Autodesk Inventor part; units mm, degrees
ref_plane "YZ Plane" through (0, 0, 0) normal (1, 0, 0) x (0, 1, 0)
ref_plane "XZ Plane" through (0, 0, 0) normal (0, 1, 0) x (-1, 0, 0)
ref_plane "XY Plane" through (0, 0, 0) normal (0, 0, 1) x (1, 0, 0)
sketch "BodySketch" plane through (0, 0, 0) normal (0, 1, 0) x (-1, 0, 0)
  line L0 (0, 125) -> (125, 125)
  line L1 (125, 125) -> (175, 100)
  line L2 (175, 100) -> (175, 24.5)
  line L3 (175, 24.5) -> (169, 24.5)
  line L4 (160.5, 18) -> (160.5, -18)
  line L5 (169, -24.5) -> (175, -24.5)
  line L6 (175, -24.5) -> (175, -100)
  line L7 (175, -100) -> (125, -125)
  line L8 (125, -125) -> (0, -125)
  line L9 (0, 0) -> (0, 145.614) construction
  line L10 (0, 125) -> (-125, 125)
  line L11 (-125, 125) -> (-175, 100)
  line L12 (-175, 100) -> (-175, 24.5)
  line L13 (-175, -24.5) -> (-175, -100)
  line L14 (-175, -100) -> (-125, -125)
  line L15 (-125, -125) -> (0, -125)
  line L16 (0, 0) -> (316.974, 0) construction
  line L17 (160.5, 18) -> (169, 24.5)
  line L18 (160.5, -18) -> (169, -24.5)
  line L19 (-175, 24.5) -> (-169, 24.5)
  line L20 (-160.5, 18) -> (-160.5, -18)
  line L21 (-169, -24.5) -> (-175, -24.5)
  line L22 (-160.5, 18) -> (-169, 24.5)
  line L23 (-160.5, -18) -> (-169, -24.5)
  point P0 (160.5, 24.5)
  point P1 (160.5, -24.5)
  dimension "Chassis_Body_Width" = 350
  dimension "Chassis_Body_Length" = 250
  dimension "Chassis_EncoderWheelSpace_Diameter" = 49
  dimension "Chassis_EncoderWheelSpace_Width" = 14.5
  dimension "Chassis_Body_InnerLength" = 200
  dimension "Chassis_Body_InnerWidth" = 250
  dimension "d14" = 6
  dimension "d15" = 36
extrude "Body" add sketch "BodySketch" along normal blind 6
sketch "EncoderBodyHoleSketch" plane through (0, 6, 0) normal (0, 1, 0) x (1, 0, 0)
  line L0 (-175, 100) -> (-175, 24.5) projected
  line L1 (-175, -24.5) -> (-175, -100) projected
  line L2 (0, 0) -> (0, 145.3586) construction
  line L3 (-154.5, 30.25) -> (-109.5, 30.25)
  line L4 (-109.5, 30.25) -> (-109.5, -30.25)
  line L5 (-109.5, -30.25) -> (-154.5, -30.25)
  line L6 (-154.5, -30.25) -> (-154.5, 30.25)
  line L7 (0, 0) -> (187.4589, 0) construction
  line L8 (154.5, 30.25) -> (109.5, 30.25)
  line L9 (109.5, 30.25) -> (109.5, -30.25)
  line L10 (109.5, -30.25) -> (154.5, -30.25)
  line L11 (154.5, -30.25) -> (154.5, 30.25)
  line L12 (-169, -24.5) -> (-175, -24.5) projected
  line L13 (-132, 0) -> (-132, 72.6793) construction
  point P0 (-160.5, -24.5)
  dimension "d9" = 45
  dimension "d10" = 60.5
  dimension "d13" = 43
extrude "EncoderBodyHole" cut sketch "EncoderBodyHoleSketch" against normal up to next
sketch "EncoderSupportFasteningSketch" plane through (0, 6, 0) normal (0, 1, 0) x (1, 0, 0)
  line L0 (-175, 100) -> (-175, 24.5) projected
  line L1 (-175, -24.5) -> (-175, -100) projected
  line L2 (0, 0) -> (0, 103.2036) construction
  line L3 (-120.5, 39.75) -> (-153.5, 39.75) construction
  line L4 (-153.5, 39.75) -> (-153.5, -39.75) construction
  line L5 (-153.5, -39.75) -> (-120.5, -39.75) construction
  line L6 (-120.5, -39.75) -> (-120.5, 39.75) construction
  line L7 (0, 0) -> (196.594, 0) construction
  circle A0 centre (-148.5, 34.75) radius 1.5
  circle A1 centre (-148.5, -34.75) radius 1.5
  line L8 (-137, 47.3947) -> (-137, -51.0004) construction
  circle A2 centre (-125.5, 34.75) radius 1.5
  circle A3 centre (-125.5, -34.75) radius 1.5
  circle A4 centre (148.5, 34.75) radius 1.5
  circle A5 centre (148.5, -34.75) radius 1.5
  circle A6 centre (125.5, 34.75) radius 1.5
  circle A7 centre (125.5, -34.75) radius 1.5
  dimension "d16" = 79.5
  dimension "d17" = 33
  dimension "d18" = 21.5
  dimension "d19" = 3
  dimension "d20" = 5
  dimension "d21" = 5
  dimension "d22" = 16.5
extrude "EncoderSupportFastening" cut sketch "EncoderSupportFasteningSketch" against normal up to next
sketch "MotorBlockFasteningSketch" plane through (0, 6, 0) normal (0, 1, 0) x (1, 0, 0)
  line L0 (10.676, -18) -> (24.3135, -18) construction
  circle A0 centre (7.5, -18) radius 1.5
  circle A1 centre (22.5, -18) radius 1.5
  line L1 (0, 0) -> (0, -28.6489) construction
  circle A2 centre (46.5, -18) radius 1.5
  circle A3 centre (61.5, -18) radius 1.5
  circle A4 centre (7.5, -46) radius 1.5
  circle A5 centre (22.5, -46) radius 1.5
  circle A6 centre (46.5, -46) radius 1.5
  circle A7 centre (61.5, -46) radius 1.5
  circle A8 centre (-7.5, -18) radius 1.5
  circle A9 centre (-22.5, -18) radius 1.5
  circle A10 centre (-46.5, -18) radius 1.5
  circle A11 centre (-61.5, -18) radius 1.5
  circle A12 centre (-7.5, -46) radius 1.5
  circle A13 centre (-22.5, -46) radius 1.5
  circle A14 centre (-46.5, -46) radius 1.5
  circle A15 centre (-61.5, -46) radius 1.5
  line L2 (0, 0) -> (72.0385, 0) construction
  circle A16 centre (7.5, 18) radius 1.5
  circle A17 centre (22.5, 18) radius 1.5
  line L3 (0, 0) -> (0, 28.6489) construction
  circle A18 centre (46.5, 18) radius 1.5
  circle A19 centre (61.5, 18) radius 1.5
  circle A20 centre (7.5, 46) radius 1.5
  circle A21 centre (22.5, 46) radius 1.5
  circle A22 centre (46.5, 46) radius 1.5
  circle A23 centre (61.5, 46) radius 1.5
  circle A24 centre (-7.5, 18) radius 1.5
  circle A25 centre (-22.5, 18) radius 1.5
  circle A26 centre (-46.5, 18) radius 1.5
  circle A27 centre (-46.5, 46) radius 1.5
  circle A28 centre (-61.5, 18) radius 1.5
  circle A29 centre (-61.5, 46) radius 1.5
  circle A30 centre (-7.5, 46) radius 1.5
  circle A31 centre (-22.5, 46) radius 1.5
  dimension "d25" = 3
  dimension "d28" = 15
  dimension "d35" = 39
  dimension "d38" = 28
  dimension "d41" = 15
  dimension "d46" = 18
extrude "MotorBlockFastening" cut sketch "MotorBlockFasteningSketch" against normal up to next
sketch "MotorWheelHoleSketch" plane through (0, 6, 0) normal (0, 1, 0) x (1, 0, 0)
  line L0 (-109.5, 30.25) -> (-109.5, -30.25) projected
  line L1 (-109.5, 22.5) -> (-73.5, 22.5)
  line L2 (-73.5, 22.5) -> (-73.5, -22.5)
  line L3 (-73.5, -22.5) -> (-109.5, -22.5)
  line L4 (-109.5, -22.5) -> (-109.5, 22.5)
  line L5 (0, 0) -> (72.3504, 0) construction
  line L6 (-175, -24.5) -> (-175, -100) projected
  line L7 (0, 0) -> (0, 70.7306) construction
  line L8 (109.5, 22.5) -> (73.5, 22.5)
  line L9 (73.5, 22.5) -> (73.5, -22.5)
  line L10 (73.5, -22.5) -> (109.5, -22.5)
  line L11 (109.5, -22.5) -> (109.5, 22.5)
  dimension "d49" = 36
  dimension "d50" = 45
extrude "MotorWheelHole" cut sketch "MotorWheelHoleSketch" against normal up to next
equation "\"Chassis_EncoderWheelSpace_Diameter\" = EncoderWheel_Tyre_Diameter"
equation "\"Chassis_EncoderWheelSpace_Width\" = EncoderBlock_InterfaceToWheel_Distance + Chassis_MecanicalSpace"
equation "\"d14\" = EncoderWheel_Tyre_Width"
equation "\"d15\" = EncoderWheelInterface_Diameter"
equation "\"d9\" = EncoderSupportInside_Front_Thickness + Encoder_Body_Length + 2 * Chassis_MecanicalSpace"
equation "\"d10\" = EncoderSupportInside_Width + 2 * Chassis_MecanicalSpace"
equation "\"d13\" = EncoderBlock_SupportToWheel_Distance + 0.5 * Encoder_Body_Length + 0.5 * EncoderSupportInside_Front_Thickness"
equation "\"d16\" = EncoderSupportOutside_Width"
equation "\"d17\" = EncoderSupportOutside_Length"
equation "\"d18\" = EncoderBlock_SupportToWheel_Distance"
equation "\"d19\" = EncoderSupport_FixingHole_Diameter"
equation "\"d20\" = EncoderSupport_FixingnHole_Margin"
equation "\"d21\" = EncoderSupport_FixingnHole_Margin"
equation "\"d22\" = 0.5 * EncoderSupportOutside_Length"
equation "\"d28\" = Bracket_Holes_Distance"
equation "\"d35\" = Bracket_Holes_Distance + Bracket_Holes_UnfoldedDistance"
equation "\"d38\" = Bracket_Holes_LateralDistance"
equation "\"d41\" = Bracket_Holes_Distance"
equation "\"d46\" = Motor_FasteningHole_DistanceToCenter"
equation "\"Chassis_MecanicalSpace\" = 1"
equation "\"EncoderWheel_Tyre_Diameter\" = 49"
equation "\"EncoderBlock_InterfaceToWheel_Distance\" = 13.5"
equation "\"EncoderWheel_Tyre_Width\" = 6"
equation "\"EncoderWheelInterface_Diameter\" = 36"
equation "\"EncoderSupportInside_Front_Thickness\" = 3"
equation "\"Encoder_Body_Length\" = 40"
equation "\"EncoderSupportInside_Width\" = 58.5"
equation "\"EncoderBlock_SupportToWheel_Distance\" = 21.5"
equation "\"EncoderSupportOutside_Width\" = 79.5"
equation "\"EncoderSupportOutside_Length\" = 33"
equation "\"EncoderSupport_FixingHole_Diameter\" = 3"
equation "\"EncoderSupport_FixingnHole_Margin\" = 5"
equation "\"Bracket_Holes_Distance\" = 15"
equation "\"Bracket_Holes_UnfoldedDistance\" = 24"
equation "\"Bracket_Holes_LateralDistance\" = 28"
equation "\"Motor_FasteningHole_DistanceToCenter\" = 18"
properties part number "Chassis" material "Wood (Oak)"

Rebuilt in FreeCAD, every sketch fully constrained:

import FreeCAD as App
import Part
import Sketcher

V = App.Vector

doc = App.newDocument("Part")
body = doc.addObject("PartDesign::Body", "Body")

sketch1 = body.newObject("Sketcher::SketchObject", "Sketch")
sketch1.AttachmentSupport = (doc.getObject("XZ_Plane"), [""])
sketch1.MapMode = "FlatFace"
sketch1.addGeometry(Part.LineSegment(V(-125, 125, 0), V(125, 125, 0)), False)
sketch1.addGeometry(Part.LineSegment(V(125, 125, 0), V(175, 100, 0)), False)
sketch1.addGeometry(Part.LineSegment(V(175, 100, 0), V(175, 24.5, 0)), False)
sketch1.addGeometry(Part.LineSegment(V(175, 24.5, 0), V(169, 24.5, 0)), False)
sketch1.addGeometry(Part.LineSegment(V(169, 24.5, 0), V(160.5, 18, 0)), False)
sketch1.addGeometry(Part.LineSegment(V(160.5, 18, 0), V(160.5, -18, 0)), False)
sketch1.addGeometry(Part.LineSegment(V(160.5, -18, 0), V(169, -24.5, 0)), False)
sketch1.addGeometry(Part.LineSegment(V(169, -24.5, 0), V(175, -24.5, 0)), False)
sketch1.addGeometry(Part.LineSegment(V(175, -24.5, 0), V(175, -100, 0)), False)
sketch1.addGeometry(Part.LineSegment(V(175, -100, 0), V(125, -125, 0)), False)
sketch1.addGeometry(Part.LineSegment(V(125, -125, 0), V(-125, -125, 0)), False)
sketch1.addGeometry(Part.LineSegment(V(-125, -125, 0), V(-175, -100, 0)), False)
sketch1.addGeometry(Part.LineSegment(V(-175, -100, 0), V(-175, -24.5, 0)), False)
sketch1.addGeometry(Part.LineSegment(V(-175, -24.5, 0), V(-169, -24.5, 0)), False)
sketch1.addGeometry(Part.LineSegment(V(-169, -24.5, 0), V(-160.5, -18, 0)), False)
sketch1.addGeometry(Part.LineSegment(V(-160.5, -18, 0), V(-160.5, 18, 0)), False)
sketch1.addGeometry(Part.LineSegment(V(-160.5, 18, 0), V(-169, 24.5, 0)), False)
sketch1.addGeometry(Part.LineSegment(V(-169, 24.5, 0), V(-175, 24.5, 0)), False)
sketch1.addGeometry(Part.LineSegment(V(-175, 24.5, 0), V(-175, 100, 0)), False)
sketch1.addGeometry(Part.LineSegment(V(-175, 100, 0), V(-125, 125, 0)), False)
sketch1.addConstraint(Sketcher.Constraint("Coincident", 0, 2, 1, 1))
sketch1.addConstraint(Sketcher.Constraint("Coincident", 1, 2, 2, 1))
sketch1.addConstraint(Sketcher.Constraint("Coincident", 2, 2, 3, 1))
sketch1.addConstraint(Sketcher.Constraint("Coincident", 3, 2, 4, 1))
sketch1.addConstraint(Sketcher.Constraint("Coincident", 4, 2, 5, 1))
sketch1.addConstraint(Sketcher.Constraint("Coincident", 5, 2, 6, 1))
sketch1.addConstraint(Sketcher.Constraint("Coincident", 6, 2, 7, 1))
sketch1.addConstraint(Sketcher.Constraint("Coincident", 7, 2, 8, 1))
sketch1.addConstraint(Sketcher.Constraint("Coincident", 8, 2, 9, 1))
sketch1.addConstraint(Sketcher.Constraint("Coincident", 9, 2, 10, 1))
sketch1.addConstraint(Sketcher.Constraint("Coincident", 10, 2, 11, 1))
sketch1.addConstraint(Sketcher.Constraint("Coincident", 11, 2, 12, 1))
sketch1.addConstraint(Sketcher.Constraint("Coincident", 12, 2, 13, 1))
sketch1.addConstraint(Sketcher.Constraint("Coincident", 13, 2, 14, 1))
sketch1.addConstraint(Sketcher.Constraint("Coincident", 14, 2, 15, 1))
sketch1.addConstraint(Sketcher.Constraint("Coincident", 15, 2, 16, 1))
sketch1.addConstraint(Sketcher.Constraint("Coincident", 16, 2, 17, 1))
sketch1.addConstraint(Sketcher.Constraint("Coincident", 17, 2, 18, 1))
sketch1.addConstraint(Sketcher.Constraint("Coincident", 18, 2, 19, 1))
sketch1.addConstraint(Sketcher.Constraint("Coincident", 19, 2, 0, 1))
sketch1.addConstraint(Sketcher.Constraint("Horizontal", 0))
sketch1.addConstraint(Sketcher.Constraint("Vertical", 2))
sketch1.addConstraint(Sketcher.Constraint("Horizontal", 3))
sketch1.addConstraint(Sketcher.Constraint("Vertical", 5))
sketch1.addConstraint(Sketcher.Constraint("Horizontal", 7))
sketch1.addConstraint(Sketcher.Constraint("Vertical", 8))
sketch1.addConstraint(Sketcher.Constraint("Horizontal", 10))
sketch1.addConstraint(Sketcher.Constraint("Vertical", 12))
sketch1.addConstraint(Sketcher.Constraint("Horizontal", 13))
sketch1.addConstraint(Sketcher.Constraint("Vertical", 15))
sketch1.addConstraint(Sketcher.Constraint("Horizontal", 17))
sketch1.addConstraint(Sketcher.Constraint("Vertical", 18))
sketch1.addConstraint(Sketcher.Constraint("Symmetric", 0, 2, 10, 2, -1, 1))
sketch1.addConstraint(Sketcher.Constraint("Symmetric", 1, 2, 11, 2, -1, 1))
sketch1.addConstraint(Sketcher.Constraint("Symmetric", 3, 2, 13, 2, -1, 1))
sketch1.addConstraint(Sketcher.Constraint("Symmetric", 4, 2, 14, 2, -1, 1))
sketch1.addConstraint(Sketcher.Constraint("Symmetric", 6, 2, 16, 2, -1, 1))
sketch1.addConstraint(Sketcher.Constraint("Symmetric", 8, 2, 18, 2, -1, 1))
sketch1.addConstraint(Sketcher.Constraint("Symmetric", 8, 2, 11, 2, -2))
sketch1.addConstraint(Sketcher.Constraint("Symmetric", 6, 2, 13, 2, -2))
sketch1.addConstraint(Sketcher.Constraint("Parallel", 6, 16))
sketch1.addConstraint(Sketcher.Constraint("Parallel", 9, 19))
sketch1.addConstraint(Sketcher.Constraint("Horizontal", 5, 2, 14, 2))
sketch1.addConstraint(Sketcher.Constraint("Vertical", 0, 2, 9, 2))
sketch1.addConstraint(Sketcher.Constraint("DistanceX", 0, 1, 0, 2, 250.0))
sketch1.addConstraint(Sketcher.Constraint("DistanceX", 3, 2, 3, 1, 6.0))
sketch1.addConstraint(Sketcher.Constraint("DistanceY", 5, 2, 5, 1, 36.0))
sketch1.addConstraint(Sketcher.Constraint("DistanceY", 6, 2, 3, 2, 49.0))
sketch1.addConstraint(Sketcher.Constraint("DistanceX", 11, 2, 8, 2, 350.0))
sketch1.addConstraint(Sketcher.Constraint("DistanceX", 4, 2, 2, 2, 14.5))
sketch1.addConstraint(Sketcher.Constraint("DistanceY", 2, 2, 2, 1, 75.5))
sketch1.addConstraint(Sketcher.Constraint("DistanceY", -1, 1, 0, 2, 125.0))
pad1 = body.newObject("PartDesign::Pad", "Pad")
pad1.Profile = sketch1
pad1.Length = 6
pad1.Reversed = True

sketch2 = body.newObject("Sketcher::SketchObject", "Sketch001")
sketch2.AttachmentSupport = (doc.getObject("XZ_Plane"), [""])
sketch2.MapMode = "FlatFace"
sketch2.AttachmentOffset = App.Placement(V(0, 0, -6), App.Rotation())
sketch2.addGeometry(Part.LineSegment(V(-109.5, -30.25, 0), V(-154.5, -30.25, 0)), False)
sketch2.addGeometry(Part.LineSegment(V(-154.5, -30.25, 0), V(-154.5, 30.25, 0)), False)
sketch2.addGeometry(Part.LineSegment(V(-154.5, 30.25, 0), V(-109.5, 30.25, 0)), False)
sketch2.addGeometry(Part.LineSegment(V(-109.5, 30.25, 0), V(-109.5, -30.25, 0)), False)
sketch2.addGeometry(Part.LineSegment(V(154.5, 30.25, 0), V(154.5, -30.25, 0)), False)
sketch2.addGeometry(Part.LineSegment(V(154.5, -30.25, 0), V(109.5, -30.25, 0)), False)
sketch2.addGeometry(Part.LineSegment(V(109.5, -30.25, 0), V(109.5, 30.25, 0)), False)
sketch2.addGeometry(Part.LineSegment(V(109.5, 30.25, 0), V(154.5, 30.25, 0)), False)
sketch2.addConstraint(Sketcher.Constraint("Coincident", 0, 2, 1, 1))
sketch2.addConstraint(Sketcher.Constraint("Coincident", 1, 2, 2, 1))
sketch2.addConstraint(Sketcher.Constraint("Coincident", 2, 2, 3, 1))
sketch2.addConstraint(Sketcher.Constraint("Coincident", 3, 2, 0, 1))
sketch2.addConstraint(Sketcher.Constraint("Coincident", 4, 2, 5, 1))
sketch2.addConstraint(Sketcher.Constraint("Coincident", 5, 2, 6, 1))
sketch2.addConstraint(Sketcher.Constraint("Coincident", 6, 2, 7, 1))
sketch2.addConstraint(Sketcher.Constraint("Coincident", 7, 2, 4, 1))
sketch2.addConstraint(Sketcher.Constraint("Horizontal", 0))
sketch2.addConstraint(Sketcher.Constraint("Vertical", 1))
sketch2.addConstraint(Sketcher.Constraint("Horizontal", 2))
sketch2.addConstraint(Sketcher.Constraint("Vertical", 3))
sketch2.addConstraint(Sketcher.Constraint("Vertical", 4))
sketch2.addConstraint(Sketcher.Constraint("Horizontal", 5))
sketch2.addConstraint(Sketcher.Constraint("Vertical", 6))
sketch2.addConstraint(Sketcher.Constraint("Horizontal", 7))
sketch2.addConstraint(Sketcher.Constraint("Symmetric", 1, 2, 4, 2, -1, 1))
sketch2.addConstraint(Sketcher.Constraint("Symmetric", 3, 2, 6, 2, -1, 1))
sketch2.addConstraint(Sketcher.Constraint("Horizontal", 3, 2, 4, 2))
sketch2.addConstraint(Sketcher.Constraint("DistanceX", 0, 2, 0, 1, 45.0))
sketch2.addConstraint(Sketcher.Constraint("DistanceY", 1, 1, 1, 2, 60.5))
sketch2.addConstraint(Sketcher.Constraint("DistanceX", 3, 2, 4, 2, 264.0))
pocket1 = body.newObject("PartDesign::Pocket", "Pocket")
pocket1.Profile = sketch2
pocket1.Type = "UpToFirst"
pocket1.Reversed = True

sketch3 = body.newObject("Sketcher::SketchObject", "Sketch002")
sketch3.AttachmentSupport = (doc.getObject("XZ_Plane"), [""])
sketch3.MapMode = "FlatFace"
sketch3.AttachmentOffset = App.Placement(V(0, 0, -6), App.Rotation())
sketch3.addGeometry(Part.Circle(V(-148.5, -34.75, 0), V(0, 0, 1), 1.5), False)
sketch3.addGeometry(Part.Circle(V(-148.5, 34.75, 0), V(0, 0, 1), 1.5), False)
sketch3.addGeometry(Part.Circle(V(-125.5, -34.75, 0), V(0, 0, 1), 1.5), False)
sketch3.addGeometry(Part.Circle(V(-125.5, 34.75, 0), V(0, 0, 1), 1.5), False)
sketch3.addGeometry(Part.Circle(V(148.5, -34.75, 0), V(0, 0, 1), 1.5), False)
sketch3.addGeometry(Part.Circle(V(148.5, 34.75, 0), V(0, 0, 1), 1.5), False)
sketch3.addGeometry(Part.Circle(V(125.5, -34.75, 0), V(0, 0, 1), 1.5), False)
sketch3.addGeometry(Part.Circle(V(125.5, 34.75, 0), V(0, 0, 1), 1.5), False)
sketch3.addConstraint(Sketcher.Constraint("Equal", 0, 1))
sketch3.addConstraint(Sketcher.Constraint("Equal", 1, 2))
sketch3.addConstraint(Sketcher.Constraint("Equal", 2, 3))
sketch3.addConstraint(Sketcher.Constraint("Equal", 3, 4))
sketch3.addConstraint(Sketcher.Constraint("Equal", 4, 5))
sketch3.addConstraint(Sketcher.Constraint("Equal", 5, 6))
sketch3.addConstraint(Sketcher.Constraint("Equal", 6, 7))
sketch3.addConstraint(Sketcher.Constraint("Symmetric", 1, 3, 4, 3, -1, 1))
sketch3.addConstraint(Sketcher.Constraint("Symmetric", 0, 3, 5, 3, -1, 1))
sketch3.addConstraint(Sketcher.Constraint("Symmetric", 3, 3, 6, 3, -1, 1))
sketch3.addConstraint(Sketcher.Constraint("Symmetric", 2, 3, 7, 3, -1, 1))
sketch3.addConstraint(Sketcher.Constraint("Symmetric", 0, 3, 4, 3, -2))
sketch3.addConstraint(Sketcher.Constraint("Symmetric", 2, 3, 6, 3, -2))
sketch3.addConstraint(Sketcher.Constraint("Horizontal", 0, 3, 2, 3))
sketch3.addConstraint(Sketcher.Constraint("Diameter", 0, 3.0))
sketch3.addConstraint(Sketcher.Constraint("DistanceX", 0, 3, 2, 3, 23.0))
sketch3.addConstraint(Sketcher.Constraint("DistanceX", 2, 3, 4, 3, 274.0))
sketch3.addConstraint(Sketcher.Constraint("DistanceY", 0, 3, 1, 3, 69.5))
pocket2 = body.newObject("PartDesign::Pocket", "Pocket001")
pocket2.Profile = sketch3
pocket2.Type = "UpToFirst"
pocket2.Reversed = True

sketch4 = body.newObject("Sketcher::SketchObject", "Sketch003")
sketch4.AttachmentSupport = (doc.getObject("XZ_Plane"), [""])
sketch4.MapMode = "FlatFace"
sketch4.AttachmentOffset = App.Placement(V(0, 0, -6), App.Rotation())
sketch4.addGeometry(Part.Circle(V(7.5, 18, 0), V(0, 0, 1), 1.5), False)
sketch4.addGeometry(Part.Circle(V(22.5, 18, 0), V(0, 0, 1), 1.5), False)
sketch4.addGeometry(Part.Circle(V(46.5, 18, 0), V(0, 0, 1), 1.5), False)
sketch4.addGeometry(Part.Circle(V(61.5, 18, 0), V(0, 0, 1), 1.5), False)
sketch4.addGeometry(Part.Circle(V(7.5, 46, 0), V(0, 0, 1), 1.5), False)
sketch4.addGeometry(Part.Circle(V(22.5, 46, 0), V(0, 0, 1), 1.5), False)
sketch4.addGeometry(Part.Circle(V(46.5, 46, 0), V(0, 0, 1), 1.5), False)
sketch4.addGeometry(Part.Circle(V(61.5, 46, 0), V(0, 0, 1), 1.5), False)
sketch4.addGeometry(Part.Circle(V(-7.5, 18, 0), V(0, 0, 1), 1.5), False)
sketch4.addGeometry(Part.Circle(V(-22.5, 18, 0), V(0, 0, 1), 1.5), False)
sketch4.addGeometry(Part.Circle(V(-46.5, 18, 0), V(0, 0, 1), 1.5), False)
sketch4.addGeometry(Part.Circle(V(-61.5, 18, 0), V(0, 0, 1), 1.5), False)
sketch4.addGeometry(Part.Circle(V(-7.5, 46, 0), V(0, 0, 1), 1.5), False)
sketch4.addGeometry(Part.Circle(V(-22.5, 46, 0), V(0, 0, 1), 1.5), False)
sketch4.addGeometry(Part.Circle(V(-46.5, 46, 0), V(0, 0, 1), 1.5), False)
sketch4.addGeometry(Part.Circle(V(-61.5, 46, 0), V(0, 0, 1), 1.5), False)
sketch4.addGeometry(Part.Circle(V(7.5, -18, 0), V(0, 0, 1), 1.5), False)
sketch4.addGeometry(Part.Circle(V(22.5, -18, 0), V(0, 0, 1), 1.5), False)
sketch4.addGeometry(Part.Circle(V(46.5, -18, 0), V(0, 0, 1), 1.5), False)
sketch4.addGeometry(Part.Circle(V(61.5, -18, 0), V(0, 0, 1), 1.5), False)
sketch4.addGeometry(Part.Circle(V(7.5, -46, 0), V(0, 0, 1), 1.5), False)
sketch4.addGeometry(Part.Circle(V(22.5, -46, 0), V(0, 0, 1), 1.5), False)
sketch4.addGeometry(Part.Circle(V(46.5, -46, 0), V(0, 0, 1), 1.5), False)
sketch4.addGeometry(Part.Circle(V(61.5, -46, 0), V(0, 0, 1), 1.5), False)
sketch4.addGeometry(Part.Circle(V(-7.5, -18, 0), V(0, 0, 1), 1.5), False)
sketch4.addGeometry(Part.Circle(V(-22.5, -18, 0), V(0, 0, 1), 1.5), False)
sketch4.addGeometry(Part.Circle(V(-46.5, -18, 0), V(0, 0, 1), 1.5), False)
sketch4.addGeometry(Part.Circle(V(-46.5, -46, 0), V(0, 0, 1), 1.5), False)
sketch4.addGeometry(Part.Circle(V(-61.5, -18, 0), V(0, 0, 1), 1.5), False)
sketch4.addGeometry(Part.Circle(V(-61.5, -46, 0), V(0, 0, 1), 1.5), False)
sketch4.addGeometry(Part.Circle(V(-7.5, -46, 0), V(0, 0, 1), 1.5), False)
sketch4.addGeometry(Part.Circle(V(-22.5, -46, 0), V(0, 0, 1), 1.5), False)
sketch4.addConstraint(Sketcher.Constraint("Equal", 0, 1))
sketch4.addConstraint(Sketcher.Constraint("Equal", 1, 2))
sketch4.addConstraint(Sketcher.Constraint("Equal", 2, 3))
sketch4.addConstraint(Sketcher.Constraint("Equal", 3, 4))
sketch4.addConstraint(Sketcher.Constraint("Equal", 4, 5))
sketch4.addConstraint(Sketcher.Constraint("Equal", 5, 6))
sketch4.addConstraint(Sketcher.Constraint("Equal", 6, 7))
sketch4.addConstraint(Sketcher.Constraint("Equal", 7, 8))
sketch4.addConstraint(Sketcher.Constraint("Equal", 8, 9))
sketch4.addConstraint(Sketcher.Constraint("Equal", 9, 10))
sketch4.addConstraint(Sketcher.Constraint("Equal", 10, 11))
sketch4.addConstraint(Sketcher.Constraint("Equal", 11, 12))
sketch4.addConstraint(Sketcher.Constraint("Equal", 12, 13))
sketch4.addConstraint(Sketcher.Constraint("Equal", 13, 14))
sketch4.addConstraint(Sketcher.Constraint("Equal", 14, 15))
sketch4.addConstraint(Sketcher.Constraint("Equal", 15, 16))
sketch4.addConstraint(Sketcher.Constraint("Equal", 16, 17))
sketch4.addConstraint(Sketcher.Constraint("Equal", 17, 18))
sketch4.addConstraint(Sketcher.Constraint("Equal", 18, 19))
sketch4.addConstraint(Sketcher.Constraint("Equal", 19, 20))
sketch4.addConstraint(Sketcher.Constraint("Equal", 20, 21))
sketch4.addConstraint(Sketcher.Constraint("Equal", 21, 22))
sketch4.addConstraint(Sketcher.Constraint("Equal", 22, 23))
sketch4.addConstraint(Sketcher.Constraint("Equal", 23, 24))
sketch4.addConstraint(Sketcher.Constraint("Equal", 24, 25))
sketch4.addConstraint(Sketcher.Constraint("Equal", 25, 26))
sketch4.addConstraint(Sketcher.Constraint("Equal", 26, 27))
sketch4.addConstraint(Sketcher.Constraint("Equal", 27, 28))
sketch4.addConstraint(Sketcher.Constraint("Equal", 28, 29))
sketch4.addConstraint(Sketcher.Constraint("Equal", 29, 30))
sketch4.addConstraint(Sketcher.Constraint("Equal", 30, 31))
sketch4.addConstraint(Sketcher.Constraint("Symmetric", 8, 3, 16, 3, -1, 1))
sketch4.addConstraint(Sketcher.Constraint("Symmetric", 9, 3, 17, 3, -1, 1))
sketch4.addConstraint(Sketcher.Constraint("Symmetric", 10, 3, 18, 3, -1, 1))
sketch4.addConstraint(Sketcher.Constraint("Symmetric", 11, 3, 19, 3, -1, 1))
sketch4.addConstraint(Sketcher.Constraint("Symmetric", 12, 3, 20, 3, -1, 1))
sketch4.addConstraint(Sketcher.Constraint("Symmetric", 13, 3, 21, 3, -1, 1))
sketch4.addConstraint(Sketcher.Constraint("Symmetric", 14, 3, 22, 3, -1, 1))
sketch4.addConstraint(Sketcher.Constraint("Symmetric", 15, 3, 23, 3, -1, 1))
sketch4.addConstraint(Sketcher.Constraint("Symmetric", 0, 3, 24, 3, -1, 1))
sketch4.addConstraint(Sketcher.Constraint("Symmetric", 1, 3, 25, 3, -1, 1))
sketch4.addConstraint(Sketcher.Constraint("Symmetric", 2, 3, 26, 3, -1, 1))
sketch4.addConstraint(Sketcher.Constraint("Symmetric", 6, 3, 27, 3, -1, 1))
sketch4.addConstraint(Sketcher.Constraint("Symmetric", 3, 3, 28, 3, -1, 1))
sketch4.addConstraint(Sketcher.Constraint("Symmetric", 7, 3, 29, 3, -1, 1))
sketch4.addConstraint(Sketcher.Constraint("Symmetric", 4, 3, 30, 3, -1, 1))
sketch4.addConstraint(Sketcher.Constraint("Symmetric", 5, 3, 31, 3, -1, 1))
sketch4.addConstraint(Sketcher.Constraint("Symmetric", 0, 3, 8, 3, -2))
sketch4.addConstraint(Sketcher.Constraint("Symmetric", 1, 3, 9, 3, -2))
sketch4.addConstraint(Sketcher.Constraint("Symmetric", 2, 3, 10, 3, -2))
sketch4.addConstraint(Sketcher.Constraint("Symmetric", 3, 3, 11, 3, -2))
sketch4.addConstraint(Sketcher.Constraint("Symmetric", 4, 3, 12, 3, -2))
sketch4.addConstraint(Sketcher.Constraint("Symmetric", 5, 3, 13, 3, -2))
sketch4.addConstraint(Sketcher.Constraint("Symmetric", 6, 3, 14, 3, -2))
sketch4.addConstraint(Sketcher.Constraint("Symmetric", 7, 3, 15, 3, -2))
sketch4.addConstraint(Sketcher.Constraint("Horizontal", 0, 3, 1, 3))
sketch4.addConstraint(Sketcher.Constraint("Horizontal", 1, 3, 2, 3))
sketch4.addConstraint(Sketcher.Constraint("Horizontal", 2, 3, 3, 3))
sketch4.addConstraint(Sketcher.Constraint("Horizontal", 4, 3, 5, 3))
sketch4.addConstraint(Sketcher.Constraint("Horizontal", 5, 3, 6, 3))
sketch4.addConstraint(Sketcher.Constraint("Horizontal", 6, 3, 7, 3))
sketch4.addConstraint(Sketcher.Constraint("Vertical", 0, 3, 4, 3))
sketch4.addConstraint(Sketcher.Constraint("Vertical", 1, 3, 5, 3))
sketch4.addConstraint(Sketcher.Constraint("Vertical", 2, 3, 6, 3))
sketch4.addConstraint(Sketcher.Constraint("Vertical", 3, 3, 7, 3))
sketch4.addConstraint(Sketcher.Constraint("Diameter", 0, 3.0))
sketch4.addConstraint(Sketcher.Constraint("DistanceY", -1, 1, 0, 3, 18.0))
sketch4.addConstraint(Sketcher.Constraint("DistanceX", 0, 3, 1, 3, 15.0))
sketch4.addConstraint(Sketcher.Constraint("DistanceX", 0, 3, 2, 3, 39.0))
sketch4.addConstraint(Sketcher.Constraint("DistanceX", 2, 3, 3, 3, 15.0))
sketch4.addConstraint(Sketcher.Constraint("DistanceY", 0, 3, 4, 3, 28.0))
sketch4.addConstraint(Sketcher.Constraint("DistanceX", 8, 3, 0, 3, 15.0))
pocket3 = body.newObject("PartDesign::Pocket", "Pocket002")
pocket3.Profile = sketch4
pocket3.Type = "UpToFirst"
pocket3.Reversed = True

sketch5 = body.newObject("Sketcher::SketchObject", "Sketch004")
sketch5.AttachmentSupport = (doc.getObject("XZ_Plane"), [""])
sketch5.MapMode = "FlatFace"
sketch5.AttachmentOffset = App.Placement(V(0, 0, -6), App.Rotation())
sketch5.addGeometry(Part.LineSegment(V(-73.5, -22.5, 0), V(-109.5, -22.5, 0)), False)
sketch5.addGeometry(Part.LineSegment(V(-109.5, -22.5, 0), V(-109.5, 22.5, 0)), False)
sketch5.addGeometry(Part.LineSegment(V(-109.5, 22.5, 0), V(-73.5, 22.5, 0)), False)
sketch5.addGeometry(Part.LineSegment(V(-73.5, 22.5, 0), V(-73.5, -22.5, 0)), False)
sketch5.addGeometry(Part.LineSegment(V(109.5, 22.5, 0), V(109.5, -22.5, 0)), False)
sketch5.addGeometry(Part.LineSegment(V(109.5, -22.5, 0), V(73.5, -22.5, 0)), False)
sketch5.addGeometry(Part.LineSegment(V(73.5, -22.5, 0), V(73.5, 22.5, 0)), False)
sketch5.addGeometry(Part.LineSegment(V(73.5, 22.5, 0), V(109.5, 22.5, 0)), False)
sketch5.addConstraint(Sketcher.Constraint("Coincident", 0, 2, 1, 1))
sketch5.addConstraint(Sketcher.Constraint("Coincident", 1, 2, 2, 1))
sketch5.addConstraint(Sketcher.Constraint("Coincident", 2, 2, 3, 1))
sketch5.addConstraint(Sketcher.Constraint("Coincident", 3, 2, 0, 1))
sketch5.addConstraint(Sketcher.Constraint("Coincident", 4, 2, 5, 1))
sketch5.addConstraint(Sketcher.Constraint("Coincident", 5, 2, 6, 1))
sketch5.addConstraint(Sketcher.Constraint("Coincident", 6, 2, 7, 1))
sketch5.addConstraint(Sketcher.Constraint("Coincident", 7, 2, 4, 1))
sketch5.addConstraint(Sketcher.Constraint("Horizontal", 0))
sketch5.addConstraint(Sketcher.Constraint("Vertical", 1))
sketch5.addConstraint(Sketcher.Constraint("Horizontal", 2))
sketch5.addConstraint(Sketcher.Constraint("Vertical", 3))
sketch5.addConstraint(Sketcher.Constraint("Vertical", 4))
sketch5.addConstraint(Sketcher.Constraint("Horizontal", 5))
sketch5.addConstraint(Sketcher.Constraint("Vertical", 6))
sketch5.addConstraint(Sketcher.Constraint("Horizontal", 7))
sketch5.addConstraint(Sketcher.Constraint("Symmetric", 1, 2, 4, 2, -1, 1))
sketch5.addConstraint(Sketcher.Constraint("Symmetric", 3, 2, 6, 2, -1, 1))
sketch5.addConstraint(Sketcher.Constraint("Horizontal", 3, 2, 4, 2))
sketch5.addConstraint(Sketcher.Constraint("DistanceX", 0, 2, 0, 1, 36.0))
sketch5.addConstraint(Sketcher.Constraint("DistanceY", 1, 1, 1, 2, 45.0))
sketch5.addConstraint(Sketcher.Constraint("DistanceX", 3, 2, 4, 2, 183.0))
pocket4 = body.newObject("PartDesign::Pocket", "Pocket003")
pocket4.Profile = sketch5
pocket4.Type = "UpToFirst"
pocket4.Reversed = True

doc.recompute()
